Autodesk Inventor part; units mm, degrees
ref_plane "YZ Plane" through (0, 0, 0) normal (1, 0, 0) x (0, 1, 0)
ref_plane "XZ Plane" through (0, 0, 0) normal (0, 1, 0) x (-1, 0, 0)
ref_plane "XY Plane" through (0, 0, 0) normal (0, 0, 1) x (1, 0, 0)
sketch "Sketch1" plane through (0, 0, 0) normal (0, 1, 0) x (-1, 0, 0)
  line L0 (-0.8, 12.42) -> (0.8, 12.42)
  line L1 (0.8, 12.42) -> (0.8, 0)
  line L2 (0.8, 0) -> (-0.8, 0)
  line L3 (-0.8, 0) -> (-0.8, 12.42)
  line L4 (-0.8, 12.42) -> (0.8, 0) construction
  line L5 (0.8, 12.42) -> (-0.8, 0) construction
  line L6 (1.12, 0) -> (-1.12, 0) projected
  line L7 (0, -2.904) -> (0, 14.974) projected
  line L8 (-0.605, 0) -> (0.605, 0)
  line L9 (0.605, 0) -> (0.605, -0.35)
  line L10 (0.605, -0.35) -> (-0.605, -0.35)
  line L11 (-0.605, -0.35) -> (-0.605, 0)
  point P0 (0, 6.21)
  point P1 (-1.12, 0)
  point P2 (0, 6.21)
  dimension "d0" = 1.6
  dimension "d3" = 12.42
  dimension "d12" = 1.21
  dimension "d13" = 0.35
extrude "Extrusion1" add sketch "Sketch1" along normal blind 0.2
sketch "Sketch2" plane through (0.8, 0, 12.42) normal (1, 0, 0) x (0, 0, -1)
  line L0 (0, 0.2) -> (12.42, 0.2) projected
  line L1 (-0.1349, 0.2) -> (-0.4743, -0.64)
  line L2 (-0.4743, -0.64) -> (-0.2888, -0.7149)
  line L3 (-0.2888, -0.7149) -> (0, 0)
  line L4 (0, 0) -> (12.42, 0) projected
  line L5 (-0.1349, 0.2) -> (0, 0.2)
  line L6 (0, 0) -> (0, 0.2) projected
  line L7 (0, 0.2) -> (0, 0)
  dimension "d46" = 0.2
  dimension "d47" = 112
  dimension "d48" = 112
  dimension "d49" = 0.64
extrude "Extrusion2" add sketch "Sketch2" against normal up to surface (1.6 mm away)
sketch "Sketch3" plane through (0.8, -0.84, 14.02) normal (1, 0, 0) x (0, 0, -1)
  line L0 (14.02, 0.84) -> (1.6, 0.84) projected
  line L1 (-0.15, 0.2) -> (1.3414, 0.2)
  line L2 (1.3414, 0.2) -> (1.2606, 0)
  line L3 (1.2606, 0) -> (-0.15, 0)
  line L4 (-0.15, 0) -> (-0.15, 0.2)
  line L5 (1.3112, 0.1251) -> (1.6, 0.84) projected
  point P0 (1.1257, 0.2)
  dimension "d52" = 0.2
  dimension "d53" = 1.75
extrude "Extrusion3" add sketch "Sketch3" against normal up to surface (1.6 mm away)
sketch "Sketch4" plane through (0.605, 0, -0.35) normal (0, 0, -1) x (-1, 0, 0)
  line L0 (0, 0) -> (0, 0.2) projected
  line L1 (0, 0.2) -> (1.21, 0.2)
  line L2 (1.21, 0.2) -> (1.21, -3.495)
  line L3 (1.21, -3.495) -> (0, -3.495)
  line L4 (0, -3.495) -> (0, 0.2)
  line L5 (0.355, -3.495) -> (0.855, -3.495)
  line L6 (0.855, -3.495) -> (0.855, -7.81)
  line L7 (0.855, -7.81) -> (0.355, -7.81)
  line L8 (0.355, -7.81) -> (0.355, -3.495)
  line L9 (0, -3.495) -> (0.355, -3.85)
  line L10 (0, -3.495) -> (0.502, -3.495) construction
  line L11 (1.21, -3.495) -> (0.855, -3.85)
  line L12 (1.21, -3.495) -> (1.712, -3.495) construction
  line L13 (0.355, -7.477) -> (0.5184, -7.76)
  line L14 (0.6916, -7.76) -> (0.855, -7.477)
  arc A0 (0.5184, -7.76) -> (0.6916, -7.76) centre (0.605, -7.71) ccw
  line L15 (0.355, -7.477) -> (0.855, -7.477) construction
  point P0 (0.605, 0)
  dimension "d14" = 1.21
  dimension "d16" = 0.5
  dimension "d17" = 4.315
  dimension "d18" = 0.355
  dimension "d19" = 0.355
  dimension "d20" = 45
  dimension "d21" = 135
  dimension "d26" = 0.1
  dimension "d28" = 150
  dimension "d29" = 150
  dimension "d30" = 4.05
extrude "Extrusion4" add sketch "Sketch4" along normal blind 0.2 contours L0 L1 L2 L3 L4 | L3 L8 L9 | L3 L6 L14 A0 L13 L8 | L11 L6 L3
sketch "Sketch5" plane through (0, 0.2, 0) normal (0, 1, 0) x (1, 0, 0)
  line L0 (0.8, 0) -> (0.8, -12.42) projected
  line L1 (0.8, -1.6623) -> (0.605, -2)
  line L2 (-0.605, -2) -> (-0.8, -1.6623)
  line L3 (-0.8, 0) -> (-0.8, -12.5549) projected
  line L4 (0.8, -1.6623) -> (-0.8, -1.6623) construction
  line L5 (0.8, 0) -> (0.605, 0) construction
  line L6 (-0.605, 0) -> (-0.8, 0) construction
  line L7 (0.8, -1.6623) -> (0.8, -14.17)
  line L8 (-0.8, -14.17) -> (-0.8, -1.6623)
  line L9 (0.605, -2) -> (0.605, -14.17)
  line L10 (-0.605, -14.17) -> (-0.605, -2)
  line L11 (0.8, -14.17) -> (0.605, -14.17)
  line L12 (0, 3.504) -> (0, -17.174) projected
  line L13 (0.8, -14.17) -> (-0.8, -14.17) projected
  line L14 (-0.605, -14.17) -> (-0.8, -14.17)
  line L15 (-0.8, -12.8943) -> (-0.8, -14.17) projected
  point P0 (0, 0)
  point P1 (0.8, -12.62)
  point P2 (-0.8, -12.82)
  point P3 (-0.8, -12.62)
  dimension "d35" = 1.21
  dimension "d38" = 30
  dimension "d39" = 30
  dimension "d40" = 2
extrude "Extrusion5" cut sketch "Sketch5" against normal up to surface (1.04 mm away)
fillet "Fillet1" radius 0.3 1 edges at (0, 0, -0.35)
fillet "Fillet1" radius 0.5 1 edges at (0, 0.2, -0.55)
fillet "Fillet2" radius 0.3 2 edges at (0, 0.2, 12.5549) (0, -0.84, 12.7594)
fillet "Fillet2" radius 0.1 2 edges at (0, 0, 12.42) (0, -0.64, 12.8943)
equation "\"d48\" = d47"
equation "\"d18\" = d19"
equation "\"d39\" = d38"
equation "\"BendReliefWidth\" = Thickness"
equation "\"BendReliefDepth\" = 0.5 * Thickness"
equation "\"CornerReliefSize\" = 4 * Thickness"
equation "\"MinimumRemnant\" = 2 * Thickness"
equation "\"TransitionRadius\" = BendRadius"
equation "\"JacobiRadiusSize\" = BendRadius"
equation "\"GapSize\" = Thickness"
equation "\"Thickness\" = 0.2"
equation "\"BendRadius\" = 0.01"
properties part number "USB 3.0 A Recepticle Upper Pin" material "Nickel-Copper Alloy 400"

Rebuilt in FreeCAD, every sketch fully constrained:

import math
import FreeCAD as App
import Part
import Sketcher
from FreeCAD import Vector
Q = App.Units.Quantity


def edges_at(feature, points):
    """Names of the edges that pass closest to the given points."""
    edges = feature.Shape.Edges
    near = lambda p: min(range(len(edges)), key=lambda i: edges[i].distToShape(Part.Vertex(*p))[0])
    return sorted({f"Edge{near(p) + 1}" for p in points})

doc = App.newDocument("Part")
params = doc.addObject("Spreadsheet::Sheet", "Params")
for row, (alias, value) in enumerate([
    ("sketch1_width", "1.6 mm"),
    ("sketch1_width2", "1.21 mm"),
    ("sketch1_height", "12.42 mm"),
    ("sketch1_height2", "0.35 mm"),
    ("pad1_length", "0.2 mm"),
    ("sketch2_width", "0.2 mm"),
    ("sketch2_length", "0.2 mm"),
    ("pad2_length", "1.6 mm"),
    ("sketch3_width", "0.2 mm"),
    ("pad3_length", "1.6 mm"),
    ("sketch4_radius", "0.1 mm"),
    ("sketch4_width", "1.21 mm"),
    ("pad4_length", "0.2 mm"),
    ("sketch5_height", "12.17 mm"),
    ("sketch5_length", "0.39 mm"),
    ("pocket1_length", "1.04 mm"),
    ("fillet_radius", "0.3 mm"),
    ("fillet2_radius", "0.5 mm"),
    ("fillet3_radius", "0.3 mm"),
    ("fillet4_radius", "0.1 mm"),
], start=1):
    params.set(f"A{row}", alias)
    params.set(f"B{row}", "=" + value)
    params.setAlias(f"B{row}", alias)

body = doc.addObject("PartDesign::Body", "Body")

# Sketch on XZ plane
sketch1 = doc.addObject("Sketcher::SketchObject", "Sketch")
body.addObject(sketch1)
sketch1.AttachmentSupport = (doc.XZ_Plane, [""])
sketch1.MapMode = "FlatFace"
sketch1.addGeometry([
    Part.LineSegment(Vector(0.8, 12.42, 0), Vector(0.8, 0, 0)),  # 0
    Part.LineSegment(Vector(0.8, 0, 0), Vector(0.6, 0, 0)),  # 1
    Part.LineSegment(Vector(0.6, 0, 0), Vector(0.6, -0.35, 0)),  # 2
    Part.LineSegment(Vector(0.6, -0.35, 0), Vector(-0.6, -0.35, 0)),  # 3
    Part.LineSegment(Vector(-0.6, -0.35, 0), Vector(-0.6, 0, 0)),  # 4
    Part.LineSegment(Vector(-0.6, 0, 0), Vector(-0.8, 0, 0)),  # 5
    Part.LineSegment(Vector(-0.8, 0, 0), Vector(-0.8, 12.42, 0)),  # 6
    Part.LineSegment(Vector(-0.8, 12.42, 0), Vector(0.8, 12.42, 0)),  # 7
], False)
sketch1.addConstraint([
    Sketcher.Constraint("Coincident", 0, 2, 1, 1),
    Sketcher.Constraint("Coincident", 1, 2, 2, 1),
    Sketcher.Constraint("Coincident", 2, 2, 3, 1),
    Sketcher.Constraint("Coincident", 3, 2, 4, 1),
    Sketcher.Constraint("Coincident", 4, 2, 5, 1),
    Sketcher.Constraint("Coincident", 5, 2, 6, 1),
    Sketcher.Constraint("Coincident", 6, 2, 7, 1),
    Sketcher.Constraint("Coincident", 7, 2, 0, 1),
    Sketcher.Constraint("Vertical", 0),
    Sketcher.Constraint("Horizontal", 1),
    Sketcher.Constraint("Vertical", 2),
    Sketcher.Constraint("Horizontal", 3),
    Sketcher.Constraint("Vertical", 4),
    Sketcher.Constraint("Horizontal", 5),
    Sketcher.Constraint("Vertical", 6),
    Sketcher.Constraint("Horizontal", 7),
    Sketcher.Constraint("Symmetric", 1, 2, 4, 2, -1, 1),
    Sketcher.Constraint("Symmetric", 0, 2, 5, 2, -2),
    Sketcher.Constraint("DistanceX", 7, 1, 7, 2, 1.6),
    Sketcher.Constraint("DistanceX", 3, 2, 3, 1, 1.21),
    Sketcher.Constraint("DistanceY", 0, 2, 0, 1, 12.42),
    Sketcher.Constraint("DistanceY", 2, 2, 2, 1, 0.35),
])
sketch1.setExpression("Constraints[18]", "Params.sketch1_width")
sketch1.setExpression("Constraints[19]", "Params.sketch1_width2")
sketch1.setExpression("Constraints[20]", "Params.sketch1_height")
sketch1.setExpression("Constraints[21]", "Params.sketch1_height2")
pad1 = doc.addObject("PartDesign::Pad", "Pad")
body.addObject(pad1)
pad1.Profile = sketch1
pad1.setExpression("Length", "Params.pad1_length")
pad1.Reversed = True

# Sketch on YZ plane
sketch2 = doc.addObject("Sketcher::SketchObject", "Sketch001")
body.addObject(sketch2)
sketch2.AttachmentSupport = (doc.YZ_Plane, [""])
sketch2.MapMode = "FlatFace"
sketch2.AttachmentOffset = App.Placement(Vector(0, 0, 0.8), App.Rotation())
sketch2.addGeometry([
    Part.LineSegment(Vector(0.2, 12.42, 0), Vector(0.2, 12.55, 0)),  # 0
    Part.LineSegment(Vector(0.2, 12.55, 0), Vector(-0.64, 12.89, 0)),  # 1
    Part.LineSegment(Vector(-0.64, 12.89, 0), Vector(-0.71, 12.71, 0)),  # 2
    Part.LineSegment(Vector(-0.71, 12.71, 0), Vector(0, 12.42, 0)),  # 3
    Part.LineSegment(Vector(0, 12.42, 0), Vector(0.2, 12.42, 0)),  # 4
], False)
sketch2.addConstraint([
    Sketcher.Constraint("Coincident", 0, 2, 1, 1),
    Sketcher.Constraint("Coincident", 1, 2, 2, 1),
    Sketcher.Constraint("Coincident", 2, 2, 3, 1),
    Sketcher.Constraint("Coincident", 3, 2, 4, 1),
    Sketcher.Constraint("Coincident", 4, 2, 0, 1),
    Sketcher.Constraint("Vertical", 0),
    Sketcher.Constraint("Horizontal", 4),
    Sketcher.Constraint("PointOnObject", 3, 2, -2),
    Sketcher.Constraint("Perpendicular", 1, 2),
    Sketcher.Constraint("Perpendicular", 2, 3),
    Sketcher.Constraint("DistanceX", 4, 1, 4, 2, 0.2),
    Sketcher.Constraint("Distance", 2, 0.2),
    Sketcher.Constraint("DistanceX", 1, 2, -1, 1, 0.64),
    Sketcher.Constraint("Angle", 1, Q("157.999 deg")),
    Sketcher.Constraint("DistanceY", -1, 1, 3, 2, 12.42),
])
sketch2.setExpression("Constraints[10]", "Params.sketch2_width")
sketch2.setExpression("Constraints[11]", "Params.sketch2_length")
pad2 = doc.addObject("PartDesign::Pad", "Pad001")
body.addObject(pad2)
pad2.Profile = sketch2
pad2.setExpression("Length", "Params.pad2_length")
pad2.Reversed = True

# Sketch on YZ plane
sketch3 = doc.addObject("Sketcher::SketchObject", "Sketch002")
body.addObject(sketch3)
sketch3.AttachmentSupport = (doc.YZ_Plane, [""])
sketch3.MapMode = "FlatFace"
sketch3.AttachmentOffset = App.Placement(Vector(0, 0, 0.8), App.Rotation())
sketch3.addGeometry([
    Part.LineSegment(Vector(-0.64, 12.68, 0), Vector(-0.64, 14.17, 0)),
    Part.LineSegment(Vector(-0.64, 14.17, 0), Vector(-0.84, 14.17, 0)),
    Part.LineSegment(Vector(-0.84, 14.17, 0), Vector(-0.84, 12.76, 0)),
    Part.LineSegment(Vector(-0.84, 12.76, 0), Vector(-0.64, 12.68, 0)),
], False)
sketch3.addConstraint([
    Sketcher.Constraint("Coincident", 0, 2, 1, 1),
    Sketcher.Constraint("Coincident", 1, 2, 2, 1),
    Sketcher.Constraint("Coincident", 2, 2, 3, 1),
    Sketcher.Constraint("Coincident", 3, 2, 0, 1),
    Sketcher.Constraint("Vertical", 0),
    Sketcher.Constraint("Horizontal", 1),
    Sketcher.Constraint("Vertical", 2),
    Sketcher.Constraint("DistanceX", 1, 2, 1, 1, 0.2),
    Sketcher.Constraint("DistanceX", 0, 2, -1, 1, 0.64),
    Sketcher.Constraint("DistanceY", -1, 1, 0, 2, 14.17),
    Sketcher.Constraint("DistanceY", 0, 1, 0, 2, 1.4914),
    Sketcher.Constraint("DistanceY", 2, 2, 2, 1, 1.4106),
])
sketch3.setExpression("Constraints[7]", "Params.sketch3_width")
pad3 = doc.addObject("PartDesign::Pad", "Pad002")
body.addObject(pad3)
pad3.Profile = sketch3
pad3.setExpression("Length", "Params.pad3_length")
pad3.Reversed = True

# Sketch on XY plane
sketch4 = doc.addObject("Sketcher::SketchObject", "Sketch003")
body.addObject(sketch4)
sketch4.AttachmentSupport = (doc.XY_Plane, [""])
sketch4.MapMode = "FlatFace"
sketch4.AttachmentOffset = App.Placement(Vector(0, 0, -0.35), App.Rotation())
sketch4.addGeometry([
    Part.LineSegment(Vector(0.6, 0.2, 0), Vector(0.6, -3.5, 0)),  # 0
    Part.LineSegment(Vector(0.6, -3.5, 0), Vector(0.25, -3.85, 0)),  # 1
    Part.LineSegment(Vector(0.25, -3.85, 0), Vector(0.25, -7.48, 0)),  # 2
    Part.LineSegment(Vector(0.25, -7.48, 0), Vector(0.09, -7.76, 0)),  # 3
    Part.ArcOfCircle(Part.Circle(Vector(0, -7.71, 0), Vector(0, 0, 1), 0.1), math.radians(-150), math.radians(-30)),  # 4
    Part.LineSegment(Vector(-0.09, -7.76, 0), Vector(-0.25, -7.48, 0)),  # 5
    Part.LineSegment(Vector(-0.25, -7.48, 0), Vector(-0.25, -3.85, 0)),  # 6
    Part.LineSegment(Vector(-0.25, -3.85, 0), Vector(-0.6, -3.5, 0)),  # 7
    Part.LineSegment(Vector(-0.6, -3.5, 0), Vector(-0.6, 0.2, 0)),  # 8
    Part.LineSegment(Vector(-0.6, 0.2, 0), Vector(0.6, 0.2, 0)),  # 9
], False)
sketch4.addConstraint([
    Sketcher.Constraint("Coincident", 0, 2, 1, 1),
    Sketcher.Constraint("Coincident", 1, 2, 2, 1),
    Sketcher.Constraint("Coincident", 2, 2, 3, 1),
    Sketcher.Constraint("Tangent", 3, 2, 4, 2),
    Sketcher.Constraint("Tangent", 4, 1, 5, 1),
    Sketcher.Constraint("Coincident", 5, 2, 6, 1),
    Sketcher.Constraint("Coincident", 6, 2, 7, 1),
    Sketcher.Constraint("Coincident", 7, 2, 8, 1),
    Sketcher.Constraint("Coincident", 8, 2, 9, 1),
    Sketcher.Constraint("Coincident", 9, 2, 0, 1),
    Sketcher.Constraint("Vertical", 0),
    Sketcher.Constraint("Vertical", 2),
    Sketcher.Constraint("Vertical", 6),
    Sketcher.Constraint("Vertical", 8),
    Sketcher.Constraint("Horizontal", 9),
    Sketcher.Constraint("Symmetric", 3, 2, 4, 1, -2),
    Sketcher.Constraint("Symmetric", 1, 2, 6, 2, -2),
    Sketcher.Constraint("Symmetric", 0, 2, 7, 2, -2),
    Sketcher.Constraint("Perpendicular", 1, 7),
    Sketcher.Constraint("Radius", 4, 0.1),
    Sketcher.Constraint("DistanceX", 9, 1, 9, 2, 1.21),
    Sketcher.Constraint("DistanceX", 5, 2, 2, 2, 0.5),
    Sketcher.Constraint("DistanceY", 6, 2, 8, 2, 4.05),
    Sketcher.Constraint("DistanceY", -1, 1, 8, 2, 0.2),
    Sketcher.Constraint("DistanceY", 2, 2, 2, 1, 3.627),
    Sketcher.Constraint("DistanceY", 4, 3, -1, 1, 7.71),
])
sketch4.setExpression("Constraints[19]", "Params.sketch4_radius")
sketch4.setExpression("Constraints[20]", "Params.sketch4_width")
pad4 = doc.addObject("PartDesign::Pad", "Pad003")
body.addObject(pad4)
pad4.Profile = sketch4
pad4.setExpression("Length", "Params.pad4_length")
pad4.Reversed = True

# Sketch on XZ plane
sketch5 = doc.addObject("Sketcher::SketchObject", "Sketch004")
body.addObject(sketch5)
sketch5.AttachmentSupport = (doc.XZ_Plane, [""])
sketch5.MapMode = "FlatFace"
sketch5.AttachmentOffset = App.Placement(Vector(0, 0, -0.2), App.Rotation())
sketch5.addGeometry([
    Part.LineSegment(Vector(-0.8, 14.17, 0), Vector(-0.6, 14.17, 0)),  # 0
    Part.LineSegment(Vector(-0.6, 14.17, 0), Vector(-0.6, 2, 0)),  # 1
    Part.LineSegment(Vector(-0.6, 2, 0), Vector(-0.8, 1.66, 0)),  # 2
    Part.LineSegment(Vector(-0.8, 1.66, 0), Vector(-0.8, 14.17, 0)),  # 3
    Part.LineSegment(Vector(0.8, 14.17, 0), Vector(0.8, 1.66, 0)),  # 4
    Part.LineSegment(Vector(0.8, 1.66, 0), Vector(0.6, 2, 0)),  # 5
    Part.LineSegment(Vector(0.6, 2, 0), Vector(0.6, 14.17, 0)),  # 6
    Part.LineSegment(Vector(0.6, 14.17, 0), Vector(0.8, 14.17, 0)),  # 7
], False)
sketch5.addConstraint([
    Sketcher.Constraint("Coincident", 0, 2, 1, 1),
    Sketcher.Constraint("Coincident", 1, 2, 2, 1),
    Sketcher.Constraint("Coincident", 2, 2, 3, 1),
    Sketcher.Constraint("Coincident", 3, 2, 0, 1),
    Sketcher.Constraint("Coincident", 4, 2, 5, 1),
    Sketcher.Constraint("Coincident", 5, 2, 6, 1),
    Sketcher.Constraint("Coincident", 6, 2, 7, 1),
    Sketcher.Constraint("Coincident", 7, 2, 4, 1),
    Sketcher.Constraint("Horizontal", 0),
    Sketcher.Constraint("Vertical", 1),
    Sketcher.Constraint("Vertical", 3),
    Sketcher.Constraint("Vertical", 4),
    Sketcher.Constraint("Vertical", 6),
    Sketcher.Constraint("Horizontal", 7),
    Sketcher.Constraint("Symmetric", 2, 2, 4, 2, -2),
    Sketcher.Constraint("Symmetric", 1, 2, 5, 2, -2),
    Sketcher.Constraint("Horizontal", 3, 2, 6, 2),
    Sketcher.Constraint("DistanceY", -1, 1, 1, 2, 2.0),
    Sketcher.Constraint("DistanceX", 1, 2, 5, 2, 1.21),
    Sketcher.Constraint("DistanceY", 1, 2, 1, 1, 12.17),
    Sketcher.Constraint("DistanceX", 2, 2, -1, 1, 0.8),
    Sketcher.Constraint("Distance", 2, 0.39),
])
sketch5.setExpression("Constraints[19]", "Params.sketch5_height")
sketch5.setExpression("Constraints[21]", "Params.sketch5_length")
pocket1 = doc.addObject("PartDesign::Pocket", "Pocket")
body.addObject(pocket1)
pocket1.Profile = sketch5
pocket1.setExpression("Length", "Params.pocket1_length")
pocket1.Reversed = True
doc.recompute()

fillet = doc.addObject("PartDesign::Fillet", "Fillet")
body.addObject(fillet)
fillet.Base = (pocket1, edges_at(pocket1, [(0, 0, -0.35)]))
fillet.setExpression("Radius", "Params.fillet_radius")
doc.recompute()

fillet2 = doc.addObject("PartDesign::Fillet", "Fillet001")
body.addObject(fillet2)
fillet2.Base = (fillet, edges_at(fillet, [(0, 0.2, -0.55)]))
fillet2.setExpression("Radius", "Params.fillet2_radius")
doc.recompute()

fillet3 = doc.addObject("PartDesign::Fillet", "Fillet002")
body.addObject(fillet3)
fillet3.Base = (fillet2, edges_at(fillet2, [(0, 0.2, 12.555), (0, -0.84, 12.759)]))
fillet3.setExpression("Radius", "Params.fillet3_radius")
doc.recompute()

fillet4 = doc.addObject("PartDesign::Fillet", "Fillet003")
body.addObject(fillet4)
fillet4.Base = (fillet3, edges_at(fillet3, [(0, 0, 12.42), (0, -0.64, 12.894)]))
fillet4.setExpression("Radius", "Params.fillet4_radius")

doc.recompute()
